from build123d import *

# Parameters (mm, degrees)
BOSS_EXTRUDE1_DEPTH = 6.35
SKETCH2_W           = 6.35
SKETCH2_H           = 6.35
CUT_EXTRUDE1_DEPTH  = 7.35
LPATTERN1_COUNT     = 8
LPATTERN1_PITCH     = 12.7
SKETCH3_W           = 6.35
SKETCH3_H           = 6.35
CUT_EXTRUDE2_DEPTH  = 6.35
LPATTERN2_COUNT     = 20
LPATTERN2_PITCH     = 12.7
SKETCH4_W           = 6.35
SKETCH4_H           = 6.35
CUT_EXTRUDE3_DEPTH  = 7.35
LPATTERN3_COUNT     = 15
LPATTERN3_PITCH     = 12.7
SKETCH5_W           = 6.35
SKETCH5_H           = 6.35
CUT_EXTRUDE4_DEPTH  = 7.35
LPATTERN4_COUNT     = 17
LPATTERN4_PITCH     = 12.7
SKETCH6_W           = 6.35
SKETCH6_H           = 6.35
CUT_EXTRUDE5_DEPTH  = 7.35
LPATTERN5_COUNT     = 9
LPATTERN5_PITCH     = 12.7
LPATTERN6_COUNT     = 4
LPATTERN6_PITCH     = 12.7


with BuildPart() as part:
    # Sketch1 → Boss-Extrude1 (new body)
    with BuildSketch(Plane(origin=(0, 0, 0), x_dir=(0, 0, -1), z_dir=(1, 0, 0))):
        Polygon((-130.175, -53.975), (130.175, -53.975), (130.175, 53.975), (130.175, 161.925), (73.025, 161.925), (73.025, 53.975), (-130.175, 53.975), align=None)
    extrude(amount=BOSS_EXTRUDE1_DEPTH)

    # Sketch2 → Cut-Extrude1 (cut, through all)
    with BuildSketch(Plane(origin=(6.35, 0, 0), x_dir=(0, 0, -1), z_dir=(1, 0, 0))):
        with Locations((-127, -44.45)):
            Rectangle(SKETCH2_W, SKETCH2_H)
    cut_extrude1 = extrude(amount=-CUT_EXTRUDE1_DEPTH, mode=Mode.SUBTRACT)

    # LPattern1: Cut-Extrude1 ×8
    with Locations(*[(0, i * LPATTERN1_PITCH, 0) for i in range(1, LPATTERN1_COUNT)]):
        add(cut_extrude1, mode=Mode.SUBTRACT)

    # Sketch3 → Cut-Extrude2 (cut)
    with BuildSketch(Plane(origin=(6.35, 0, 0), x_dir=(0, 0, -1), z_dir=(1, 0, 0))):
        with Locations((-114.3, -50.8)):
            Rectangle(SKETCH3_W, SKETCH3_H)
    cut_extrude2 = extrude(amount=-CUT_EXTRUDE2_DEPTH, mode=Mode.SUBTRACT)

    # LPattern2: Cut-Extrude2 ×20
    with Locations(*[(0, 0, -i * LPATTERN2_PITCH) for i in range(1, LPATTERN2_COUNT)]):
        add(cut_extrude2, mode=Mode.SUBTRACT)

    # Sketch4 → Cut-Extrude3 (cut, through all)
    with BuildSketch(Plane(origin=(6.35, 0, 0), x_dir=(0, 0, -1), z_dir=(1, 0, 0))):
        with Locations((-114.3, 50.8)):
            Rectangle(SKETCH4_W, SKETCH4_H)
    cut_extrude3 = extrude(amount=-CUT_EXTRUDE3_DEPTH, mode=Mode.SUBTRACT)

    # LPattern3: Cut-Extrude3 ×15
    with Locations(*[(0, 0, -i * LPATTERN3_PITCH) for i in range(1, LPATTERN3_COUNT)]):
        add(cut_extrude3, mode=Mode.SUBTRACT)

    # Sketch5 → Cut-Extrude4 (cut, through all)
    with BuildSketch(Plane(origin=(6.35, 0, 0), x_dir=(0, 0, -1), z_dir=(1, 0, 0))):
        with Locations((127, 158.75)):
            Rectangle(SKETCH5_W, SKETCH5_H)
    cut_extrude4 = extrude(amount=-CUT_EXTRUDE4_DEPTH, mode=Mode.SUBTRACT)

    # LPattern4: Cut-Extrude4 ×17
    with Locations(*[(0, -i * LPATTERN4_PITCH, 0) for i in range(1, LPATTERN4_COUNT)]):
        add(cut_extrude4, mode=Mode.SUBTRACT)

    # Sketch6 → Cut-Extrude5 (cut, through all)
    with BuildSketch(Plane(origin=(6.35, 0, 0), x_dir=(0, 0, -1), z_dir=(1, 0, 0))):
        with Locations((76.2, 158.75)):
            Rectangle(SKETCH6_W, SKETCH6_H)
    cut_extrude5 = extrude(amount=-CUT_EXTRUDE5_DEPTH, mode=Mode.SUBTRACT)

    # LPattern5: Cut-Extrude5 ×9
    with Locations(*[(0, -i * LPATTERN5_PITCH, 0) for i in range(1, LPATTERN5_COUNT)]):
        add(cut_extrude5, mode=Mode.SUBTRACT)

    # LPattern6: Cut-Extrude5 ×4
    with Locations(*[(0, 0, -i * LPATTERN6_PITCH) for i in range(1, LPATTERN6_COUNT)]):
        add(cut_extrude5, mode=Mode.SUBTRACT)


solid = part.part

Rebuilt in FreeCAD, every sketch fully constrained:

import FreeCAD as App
import Part
import Sketcher

V = App.Vector
Q = App.Units.Quantity

doc = App.newDocument("Part")
body = doc.addObject("PartDesign::Body", "Body")

# Sketch on YZ plane
sketch1 = body.newObject("Sketcher::SketchObject", "Sketch")
sketch1.AttachmentSupport = (doc.getObject("YZ_Plane"), [""])
sketch1.MapMode = "FlatFace"
sketch1.addGeometry([
    Part.LineSegment(V(-54, 130, 0), V(-54, -130, 0)),  # 0
    Part.LineSegment(V(-54, -130, 0), V(162, -130, 0)),  # 1
    Part.LineSegment(V(162, -130, 0), V(162, -73, 0)),  # 2
    Part.LineSegment(V(162, -73, 0), V(54, -73, 0)),  # 3
    Part.LineSegment(V(54, -73, 0), V(54, 130, 0)),  # 4
    Part.LineSegment(V(54, 130, 0), V(-54, 130, 0)),  # 5
], False)
sketch1.addConstraint([
    Sketcher.Constraint("Coincident", 0, 2, 1, 1),
    Sketcher.Constraint("Coincident", 1, 2, 2, 1),
    Sketcher.Constraint("Coincident", 2, 2, 3, 1),
    Sketcher.Constraint("Coincident", 3, 2, 4, 1),
    Sketcher.Constraint("Coincident", 4, 2, 5, 1),
    Sketcher.Constraint("Coincident", 5, 2, 0, 1),
    Sketcher.Constraint("Vertical", 0),
    Sketcher.Constraint("Horizontal", 1),
    Sketcher.Constraint("Vertical", 2),
    Sketcher.Constraint("Horizontal", 3),
    Sketcher.Constraint("Vertical", 4),
    Sketcher.Constraint("Horizontal", 5),
    Sketcher.Constraint("Symmetric", 0, 2, 4, 2, -1, 1),
    Sketcher.Constraint("Equal", 3, 5),
    Sketcher.Constraint("DistanceY", 4, 1, 4, 2, Q("8 in")),
    Sketcher.Constraint("DistanceX", 1, 1, 1, 2, Q("8.5 in")),
    Sketcher.Constraint("DistanceY", 0, 2, 0, 1, Q("10.25 in")),
])
pad1 = body.newObject("PartDesign::Pad", "Pad")
pad1.Profile = sketch1
pad1.Length = Q("0.25 in")

# Sketch on YZ plane
sketch2 = body.newObject("Sketcher::SketchObject", "Sketch001")
sketch2.AttachmentSupport = (doc.getObject("YZ_Plane"), [""])
sketch2.MapMode = "FlatFace"
sketch2.AttachmentOffset = App.Placement(V(0, 0, 0.25 * 25.4), App.Rotation())
sketch2.addGeometry([
    Part.LineSegment(V(-41, 130, 0), V(-48, 130, 0)),
    Part.LineSegment(V(-48, 130, 0), V(-48, 124, 0)),
    Part.LineSegment(V(-48, 124, 0), V(-41, 124, 0)),
    Part.LineSegment(V(-41, 124, 0), V(-41, 130, 0)),
], False)
sketch2.addConstraint([
    Sketcher.Constraint("Coincident", 0, 2, 1, 1),
    Sketcher.Constraint("Coincident", 1, 2, 2, 1),
    Sketcher.Constraint("Coincident", 2, 2, 3, 1),
    Sketcher.Constraint("Coincident", 3, 2, 0, 1),
    Sketcher.Constraint("Horizontal", 0),
    Sketcher.Constraint("Vertical", 1),
    Sketcher.Constraint("Horizontal", 2),
    Sketcher.Constraint("Vertical", 3),
    Sketcher.Constraint("Equal", 2, 1),
    Sketcher.Constraint("DistanceX", 0, 2, 0, 1, Q("0.25 in")),
    Sketcher.Constraint("DistanceX", 0, 2, -1, 1, Q("1.875 in")),
    Sketcher.Constraint("DistanceY", -1, 1, 0, 2, Q("5.125 in")),
])
pocket1 = body.newObject("PartDesign::Pocket", "Pocket")
pocket1.Profile = sketch2
pocket1.Type = "ThroughAll"
doc.recompute()

linearpattern = body.newObject("PartDesign::LinearPattern", "LinearPattern")
linearpattern.Originals = [pocket1]
linearpattern.Direction = (doc.getObject("Y_Axis"), [""])
linearpattern.Mode = "offset"
linearpattern.Offset = Q("0.5 in")
linearpattern.Occurrences = 8
body.Tip = linearpattern

# Sketch on YZ plane
sketch3 = body.newObject("Sketcher::SketchObject", "Sketch002")
sketch3.AttachmentSupport = (doc.getObject("YZ_Plane"), [""])
sketch3.MapMode = "FlatFace"
sketch3.AttachmentOffset = App.Placement(V(0, 0, 0.25 * 25.4), App.Rotation())
sketch3.addGeometry([
    Part.LineSegment(V(-48, 117, 0), V(-54, 117, 0)),
    Part.LineSegment(V(-54, 117, 0), V(-54, 111, 0)),
    Part.LineSegment(V(-54, 111, 0), V(-48, 111, 0)),
    Part.LineSegment(V(-48, 111, 0), V(-48, 117, 0)),
], False)
sketch3.addConstraint([
    Sketcher.Constraint("Coincident", 0, 2, 1, 1),
    Sketcher.Constraint("Coincident", 1, 2, 2, 1),
    Sketcher.Constraint("Coincident", 2, 2, 3, 1),
    Sketcher.Constraint("Coincident", 3, 2, 0, 1),
    Sketcher.Constraint("Horizontal", 0),
    Sketcher.Constraint("Vertical", 1),
    Sketcher.Constraint("Horizontal", 2),
    Sketcher.Constraint("Vertical", 3),
    Sketcher.Constraint("Equal", 2, 1),
    Sketcher.Constraint("DistanceX", 0, 2, 0, 1, Q("0.25 in")),
    Sketcher.Constraint("DistanceX", 0, 2, -1, 1, Q("2.125 in")),
    Sketcher.Constraint("DistanceY", -1, 1, 0, 2, Q("4.625 in")),
])
pocket2 = body.newObject("PartDesign::Pocket", "Pocket001")
pocket2.Profile = sketch3
pocket2.Length = Q("0.25 in")
doc.recompute()

linearpattern2 = body.newObject("PartDesign::LinearPattern", "LinearPattern001")
linearpattern2.Originals = [pocket2]
linearpattern2.Direction = (doc.getObject("Z_Axis"), [""])
linearpattern2.Mode = "offset"
linearpattern2.Offset = Q("0.5 in")
linearpattern2.Occurrences = 20
linearpattern2.Reversed = True
body.Tip = linearpattern2

# Sketch on YZ plane
sketch4 = body.newObject("Sketcher::SketchObject", "Sketch003")
sketch4.AttachmentSupport = (doc.getObject("YZ_Plane"), [""])
sketch4.MapMode = "FlatFace"
sketch4.AttachmentOffset = App.Placement(V(0, 0, 0.25 * 25.4), App.Rotation())
sketch4.addGeometry([
    Part.LineSegment(V(54, 117, 0), V(48, 117, 0)),
    Part.LineSegment(V(48, 117, 0), V(48, 111, 0)),
    Part.LineSegment(V(48, 111, 0), V(54, 111, 0)),
    Part.LineSegment(V(54, 111, 0), V(54, 117, 0)),
], False)
sketch4.addConstraint([
    Sketcher.Constraint("Coincident", 0, 2, 1, 1),
    Sketcher.Constraint("Coincident", 1, 2, 2, 1),
    Sketcher.Constraint("Coincident", 2, 2, 3, 1),
    Sketcher.Constraint("Coincident", 3, 2, 0, 1),
    Sketcher.Constraint("Horizontal", 0),
    Sketcher.Constraint("Vertical", 1),
    Sketcher.Constraint("Horizontal", 2),
    Sketcher.Constraint("Vertical", 3),
    Sketcher.Constraint("Equal", 2, 1),
    Sketcher.Constraint("DistanceX", 0, 2, 0, 1, Q("0.25 in")),
    Sketcher.Constraint("DistanceX", -1, 1, 0, 2, Q("1.875 in")),
    Sketcher.Constraint("DistanceY", -1, 1, 0, 2, Q("4.625 in")),
])
pocket3 = body.newObject("PartDesign::Pocket", "Pocket002")
pocket3.Profile = sketch4
pocket3.Type = "ThroughAll"
doc.recompute()

linearpattern3 = body.newObject("PartDesign::LinearPattern", "LinearPattern002")
linearpattern3.Originals = [pocket3]
linearpattern3.Direction = (doc.getObject("Z_Axis"), [""])
linearpattern3.Mode = "offset"
linearpattern3.Offset = Q("0.5 in")
linearpattern3.Occurrences = 15
linearpattern3.Reversed = True
body.Tip = linearpattern3

# Sketch on YZ plane
sketch5 = body.newObject("Sketcher::SketchObject", "Sketch004")
sketch5.AttachmentSupport = (doc.getObject("YZ_Plane"), [""])
sketch5.MapMode = "FlatFace"
sketch5.AttachmentOffset = App.Placement(V(0, 0, 0.25 * 25.4), App.Rotation())
sketch5.addGeometry([
    Part.LineSegment(V(162, -124, 0), V(156, -124, 0)),
    Part.LineSegment(V(156, -124, 0), V(156, -130, 0)),
    Part.LineSegment(V(156, -130, 0), V(162, -130, 0)),
    Part.LineSegment(V(162, -130, 0), V(162, -124, 0)),
], False)
sketch5.addConstraint([
    Sketcher.Constraint("Coincident", 0, 2, 1, 1),
    Sketcher.Constraint("Coincident", 1, 2, 2, 1),
    Sketcher.Constraint("Coincident", 2, 2, 3, 1),
    Sketcher.Constraint("Coincident", 3, 2, 0, 1),
    Sketcher.Constraint("Horizontal", 0),
    Sketcher.Constraint("Vertical", 1),
    Sketcher.Constraint("Horizontal", 2),
    Sketcher.Constraint("Vertical", 3),
    Sketcher.Constraint("Equal", 2, 1),
    Sketcher.Constraint("DistanceX", 0, 2, 0, 1, Q("0.25 in")),
    Sketcher.Constraint("DistanceX", -1, 1, 0, 2, Q("6.125 in")),
    Sketcher.Constraint("DistanceY", 0, 2, -1, 1, Q("4.875 in")),
])
pocket4 = body.newObject("PartDesign::Pocket", "Pocket003")
pocket4.Profile = sketch5
pocket4.Type = "ThroughAll"
doc.recompute()

linearpattern4 = body.newObject("PartDesign::LinearPattern", "LinearPattern003")
linearpattern4.Originals = [pocket4]
linearpattern4.Direction = (doc.getObject("Y_Axis"), [""])
linearpattern4.Mode = "offset"
linearpattern4.Offset = Q("0.5 in")
linearpattern4.Occurrences = 17
linearpattern4.Reversed = True
body.Tip = linearpattern4

# Sketch on YZ plane
sketch6 = body.newObject("Sketcher::SketchObject", "Sketch005")
sketch6.AttachmentSupport = (doc.getObject("YZ_Plane"), [""])
sketch6.MapMode = "FlatFace"
sketch6.AttachmentOffset = App.Placement(V(0, 0, 0.25 * 25.4), App.Rotation())
sketch6.addGeometry([
    Part.LineSegment(V(162, -73, 0), V(156, -73, 0)),
    Part.LineSegment(V(156, -73, 0), V(156, -79, 0)),
    Part.LineSegment(V(156, -79, 0), V(162, -79, 0)),
    Part.LineSegment(V(162, -79, 0), V(162, -73, 0)),
], False)
sketch6.addConstraint([
    Sketcher.Constraint("Coincident", 0, 2, 1, 1),
    Sketcher.Constraint("Coincident", 1, 2, 2, 1),
    Sketcher.Constraint("Coincident", 2, 2, 3, 1),
    Sketcher.Constraint("Coincident", 3, 2, 0, 1),
    Sketcher.Constraint("Horizontal", 0),
    Sketcher.Constraint("Vertical", 1),
    Sketcher.Constraint("Horizontal", 2),
    Sketcher.Constraint("Vertical", 3),
    Sketcher.Constraint("Equal", 2, 1),
    Sketcher.Constraint("DistanceX", 0, 2, 0, 1, Q("0.25 in")),
    Sketcher.Constraint("DistanceX", -1, 1, 0, 2, Q("6.125 in")),
    Sketcher.Constraint("DistanceY", 0, 2, -1, 1, Q("2.875 in")),
])
pocket5 = body.newObject("PartDesign::Pocket", "Pocket004")
pocket5.Profile = sketch6
pocket5.Type = "ThroughAll"
doc.recompute()

linearpattern5 = body.newObject("PartDesign::LinearPattern", "LinearPattern004")
linearpattern5.Originals = [pocket5]
linearpattern5.Direction = (doc.getObject("Y_Axis"), [""])
linearpattern5.Mode = "offset"
linearpattern5.Offset = Q("0.5 in")
linearpattern5.Occurrences = 9
linearpattern5.Reversed = True
body.Tip = linearpattern5
doc.recompute()

linearpattern6 = body.newObject("PartDesign::LinearPattern", "LinearPattern005")
linearpattern6.Originals = [pocket5]
linearpattern6.Direction = (doc.getObject("Z_Axis"), [""])
linearpattern6.Mode = "offset"
linearpattern6.Offset = Q("0.5 in")
linearpattern6.Occurrences = 4
linearpattern6.Reversed = True
body.Tip = linearpattern6

doc.recompute()
